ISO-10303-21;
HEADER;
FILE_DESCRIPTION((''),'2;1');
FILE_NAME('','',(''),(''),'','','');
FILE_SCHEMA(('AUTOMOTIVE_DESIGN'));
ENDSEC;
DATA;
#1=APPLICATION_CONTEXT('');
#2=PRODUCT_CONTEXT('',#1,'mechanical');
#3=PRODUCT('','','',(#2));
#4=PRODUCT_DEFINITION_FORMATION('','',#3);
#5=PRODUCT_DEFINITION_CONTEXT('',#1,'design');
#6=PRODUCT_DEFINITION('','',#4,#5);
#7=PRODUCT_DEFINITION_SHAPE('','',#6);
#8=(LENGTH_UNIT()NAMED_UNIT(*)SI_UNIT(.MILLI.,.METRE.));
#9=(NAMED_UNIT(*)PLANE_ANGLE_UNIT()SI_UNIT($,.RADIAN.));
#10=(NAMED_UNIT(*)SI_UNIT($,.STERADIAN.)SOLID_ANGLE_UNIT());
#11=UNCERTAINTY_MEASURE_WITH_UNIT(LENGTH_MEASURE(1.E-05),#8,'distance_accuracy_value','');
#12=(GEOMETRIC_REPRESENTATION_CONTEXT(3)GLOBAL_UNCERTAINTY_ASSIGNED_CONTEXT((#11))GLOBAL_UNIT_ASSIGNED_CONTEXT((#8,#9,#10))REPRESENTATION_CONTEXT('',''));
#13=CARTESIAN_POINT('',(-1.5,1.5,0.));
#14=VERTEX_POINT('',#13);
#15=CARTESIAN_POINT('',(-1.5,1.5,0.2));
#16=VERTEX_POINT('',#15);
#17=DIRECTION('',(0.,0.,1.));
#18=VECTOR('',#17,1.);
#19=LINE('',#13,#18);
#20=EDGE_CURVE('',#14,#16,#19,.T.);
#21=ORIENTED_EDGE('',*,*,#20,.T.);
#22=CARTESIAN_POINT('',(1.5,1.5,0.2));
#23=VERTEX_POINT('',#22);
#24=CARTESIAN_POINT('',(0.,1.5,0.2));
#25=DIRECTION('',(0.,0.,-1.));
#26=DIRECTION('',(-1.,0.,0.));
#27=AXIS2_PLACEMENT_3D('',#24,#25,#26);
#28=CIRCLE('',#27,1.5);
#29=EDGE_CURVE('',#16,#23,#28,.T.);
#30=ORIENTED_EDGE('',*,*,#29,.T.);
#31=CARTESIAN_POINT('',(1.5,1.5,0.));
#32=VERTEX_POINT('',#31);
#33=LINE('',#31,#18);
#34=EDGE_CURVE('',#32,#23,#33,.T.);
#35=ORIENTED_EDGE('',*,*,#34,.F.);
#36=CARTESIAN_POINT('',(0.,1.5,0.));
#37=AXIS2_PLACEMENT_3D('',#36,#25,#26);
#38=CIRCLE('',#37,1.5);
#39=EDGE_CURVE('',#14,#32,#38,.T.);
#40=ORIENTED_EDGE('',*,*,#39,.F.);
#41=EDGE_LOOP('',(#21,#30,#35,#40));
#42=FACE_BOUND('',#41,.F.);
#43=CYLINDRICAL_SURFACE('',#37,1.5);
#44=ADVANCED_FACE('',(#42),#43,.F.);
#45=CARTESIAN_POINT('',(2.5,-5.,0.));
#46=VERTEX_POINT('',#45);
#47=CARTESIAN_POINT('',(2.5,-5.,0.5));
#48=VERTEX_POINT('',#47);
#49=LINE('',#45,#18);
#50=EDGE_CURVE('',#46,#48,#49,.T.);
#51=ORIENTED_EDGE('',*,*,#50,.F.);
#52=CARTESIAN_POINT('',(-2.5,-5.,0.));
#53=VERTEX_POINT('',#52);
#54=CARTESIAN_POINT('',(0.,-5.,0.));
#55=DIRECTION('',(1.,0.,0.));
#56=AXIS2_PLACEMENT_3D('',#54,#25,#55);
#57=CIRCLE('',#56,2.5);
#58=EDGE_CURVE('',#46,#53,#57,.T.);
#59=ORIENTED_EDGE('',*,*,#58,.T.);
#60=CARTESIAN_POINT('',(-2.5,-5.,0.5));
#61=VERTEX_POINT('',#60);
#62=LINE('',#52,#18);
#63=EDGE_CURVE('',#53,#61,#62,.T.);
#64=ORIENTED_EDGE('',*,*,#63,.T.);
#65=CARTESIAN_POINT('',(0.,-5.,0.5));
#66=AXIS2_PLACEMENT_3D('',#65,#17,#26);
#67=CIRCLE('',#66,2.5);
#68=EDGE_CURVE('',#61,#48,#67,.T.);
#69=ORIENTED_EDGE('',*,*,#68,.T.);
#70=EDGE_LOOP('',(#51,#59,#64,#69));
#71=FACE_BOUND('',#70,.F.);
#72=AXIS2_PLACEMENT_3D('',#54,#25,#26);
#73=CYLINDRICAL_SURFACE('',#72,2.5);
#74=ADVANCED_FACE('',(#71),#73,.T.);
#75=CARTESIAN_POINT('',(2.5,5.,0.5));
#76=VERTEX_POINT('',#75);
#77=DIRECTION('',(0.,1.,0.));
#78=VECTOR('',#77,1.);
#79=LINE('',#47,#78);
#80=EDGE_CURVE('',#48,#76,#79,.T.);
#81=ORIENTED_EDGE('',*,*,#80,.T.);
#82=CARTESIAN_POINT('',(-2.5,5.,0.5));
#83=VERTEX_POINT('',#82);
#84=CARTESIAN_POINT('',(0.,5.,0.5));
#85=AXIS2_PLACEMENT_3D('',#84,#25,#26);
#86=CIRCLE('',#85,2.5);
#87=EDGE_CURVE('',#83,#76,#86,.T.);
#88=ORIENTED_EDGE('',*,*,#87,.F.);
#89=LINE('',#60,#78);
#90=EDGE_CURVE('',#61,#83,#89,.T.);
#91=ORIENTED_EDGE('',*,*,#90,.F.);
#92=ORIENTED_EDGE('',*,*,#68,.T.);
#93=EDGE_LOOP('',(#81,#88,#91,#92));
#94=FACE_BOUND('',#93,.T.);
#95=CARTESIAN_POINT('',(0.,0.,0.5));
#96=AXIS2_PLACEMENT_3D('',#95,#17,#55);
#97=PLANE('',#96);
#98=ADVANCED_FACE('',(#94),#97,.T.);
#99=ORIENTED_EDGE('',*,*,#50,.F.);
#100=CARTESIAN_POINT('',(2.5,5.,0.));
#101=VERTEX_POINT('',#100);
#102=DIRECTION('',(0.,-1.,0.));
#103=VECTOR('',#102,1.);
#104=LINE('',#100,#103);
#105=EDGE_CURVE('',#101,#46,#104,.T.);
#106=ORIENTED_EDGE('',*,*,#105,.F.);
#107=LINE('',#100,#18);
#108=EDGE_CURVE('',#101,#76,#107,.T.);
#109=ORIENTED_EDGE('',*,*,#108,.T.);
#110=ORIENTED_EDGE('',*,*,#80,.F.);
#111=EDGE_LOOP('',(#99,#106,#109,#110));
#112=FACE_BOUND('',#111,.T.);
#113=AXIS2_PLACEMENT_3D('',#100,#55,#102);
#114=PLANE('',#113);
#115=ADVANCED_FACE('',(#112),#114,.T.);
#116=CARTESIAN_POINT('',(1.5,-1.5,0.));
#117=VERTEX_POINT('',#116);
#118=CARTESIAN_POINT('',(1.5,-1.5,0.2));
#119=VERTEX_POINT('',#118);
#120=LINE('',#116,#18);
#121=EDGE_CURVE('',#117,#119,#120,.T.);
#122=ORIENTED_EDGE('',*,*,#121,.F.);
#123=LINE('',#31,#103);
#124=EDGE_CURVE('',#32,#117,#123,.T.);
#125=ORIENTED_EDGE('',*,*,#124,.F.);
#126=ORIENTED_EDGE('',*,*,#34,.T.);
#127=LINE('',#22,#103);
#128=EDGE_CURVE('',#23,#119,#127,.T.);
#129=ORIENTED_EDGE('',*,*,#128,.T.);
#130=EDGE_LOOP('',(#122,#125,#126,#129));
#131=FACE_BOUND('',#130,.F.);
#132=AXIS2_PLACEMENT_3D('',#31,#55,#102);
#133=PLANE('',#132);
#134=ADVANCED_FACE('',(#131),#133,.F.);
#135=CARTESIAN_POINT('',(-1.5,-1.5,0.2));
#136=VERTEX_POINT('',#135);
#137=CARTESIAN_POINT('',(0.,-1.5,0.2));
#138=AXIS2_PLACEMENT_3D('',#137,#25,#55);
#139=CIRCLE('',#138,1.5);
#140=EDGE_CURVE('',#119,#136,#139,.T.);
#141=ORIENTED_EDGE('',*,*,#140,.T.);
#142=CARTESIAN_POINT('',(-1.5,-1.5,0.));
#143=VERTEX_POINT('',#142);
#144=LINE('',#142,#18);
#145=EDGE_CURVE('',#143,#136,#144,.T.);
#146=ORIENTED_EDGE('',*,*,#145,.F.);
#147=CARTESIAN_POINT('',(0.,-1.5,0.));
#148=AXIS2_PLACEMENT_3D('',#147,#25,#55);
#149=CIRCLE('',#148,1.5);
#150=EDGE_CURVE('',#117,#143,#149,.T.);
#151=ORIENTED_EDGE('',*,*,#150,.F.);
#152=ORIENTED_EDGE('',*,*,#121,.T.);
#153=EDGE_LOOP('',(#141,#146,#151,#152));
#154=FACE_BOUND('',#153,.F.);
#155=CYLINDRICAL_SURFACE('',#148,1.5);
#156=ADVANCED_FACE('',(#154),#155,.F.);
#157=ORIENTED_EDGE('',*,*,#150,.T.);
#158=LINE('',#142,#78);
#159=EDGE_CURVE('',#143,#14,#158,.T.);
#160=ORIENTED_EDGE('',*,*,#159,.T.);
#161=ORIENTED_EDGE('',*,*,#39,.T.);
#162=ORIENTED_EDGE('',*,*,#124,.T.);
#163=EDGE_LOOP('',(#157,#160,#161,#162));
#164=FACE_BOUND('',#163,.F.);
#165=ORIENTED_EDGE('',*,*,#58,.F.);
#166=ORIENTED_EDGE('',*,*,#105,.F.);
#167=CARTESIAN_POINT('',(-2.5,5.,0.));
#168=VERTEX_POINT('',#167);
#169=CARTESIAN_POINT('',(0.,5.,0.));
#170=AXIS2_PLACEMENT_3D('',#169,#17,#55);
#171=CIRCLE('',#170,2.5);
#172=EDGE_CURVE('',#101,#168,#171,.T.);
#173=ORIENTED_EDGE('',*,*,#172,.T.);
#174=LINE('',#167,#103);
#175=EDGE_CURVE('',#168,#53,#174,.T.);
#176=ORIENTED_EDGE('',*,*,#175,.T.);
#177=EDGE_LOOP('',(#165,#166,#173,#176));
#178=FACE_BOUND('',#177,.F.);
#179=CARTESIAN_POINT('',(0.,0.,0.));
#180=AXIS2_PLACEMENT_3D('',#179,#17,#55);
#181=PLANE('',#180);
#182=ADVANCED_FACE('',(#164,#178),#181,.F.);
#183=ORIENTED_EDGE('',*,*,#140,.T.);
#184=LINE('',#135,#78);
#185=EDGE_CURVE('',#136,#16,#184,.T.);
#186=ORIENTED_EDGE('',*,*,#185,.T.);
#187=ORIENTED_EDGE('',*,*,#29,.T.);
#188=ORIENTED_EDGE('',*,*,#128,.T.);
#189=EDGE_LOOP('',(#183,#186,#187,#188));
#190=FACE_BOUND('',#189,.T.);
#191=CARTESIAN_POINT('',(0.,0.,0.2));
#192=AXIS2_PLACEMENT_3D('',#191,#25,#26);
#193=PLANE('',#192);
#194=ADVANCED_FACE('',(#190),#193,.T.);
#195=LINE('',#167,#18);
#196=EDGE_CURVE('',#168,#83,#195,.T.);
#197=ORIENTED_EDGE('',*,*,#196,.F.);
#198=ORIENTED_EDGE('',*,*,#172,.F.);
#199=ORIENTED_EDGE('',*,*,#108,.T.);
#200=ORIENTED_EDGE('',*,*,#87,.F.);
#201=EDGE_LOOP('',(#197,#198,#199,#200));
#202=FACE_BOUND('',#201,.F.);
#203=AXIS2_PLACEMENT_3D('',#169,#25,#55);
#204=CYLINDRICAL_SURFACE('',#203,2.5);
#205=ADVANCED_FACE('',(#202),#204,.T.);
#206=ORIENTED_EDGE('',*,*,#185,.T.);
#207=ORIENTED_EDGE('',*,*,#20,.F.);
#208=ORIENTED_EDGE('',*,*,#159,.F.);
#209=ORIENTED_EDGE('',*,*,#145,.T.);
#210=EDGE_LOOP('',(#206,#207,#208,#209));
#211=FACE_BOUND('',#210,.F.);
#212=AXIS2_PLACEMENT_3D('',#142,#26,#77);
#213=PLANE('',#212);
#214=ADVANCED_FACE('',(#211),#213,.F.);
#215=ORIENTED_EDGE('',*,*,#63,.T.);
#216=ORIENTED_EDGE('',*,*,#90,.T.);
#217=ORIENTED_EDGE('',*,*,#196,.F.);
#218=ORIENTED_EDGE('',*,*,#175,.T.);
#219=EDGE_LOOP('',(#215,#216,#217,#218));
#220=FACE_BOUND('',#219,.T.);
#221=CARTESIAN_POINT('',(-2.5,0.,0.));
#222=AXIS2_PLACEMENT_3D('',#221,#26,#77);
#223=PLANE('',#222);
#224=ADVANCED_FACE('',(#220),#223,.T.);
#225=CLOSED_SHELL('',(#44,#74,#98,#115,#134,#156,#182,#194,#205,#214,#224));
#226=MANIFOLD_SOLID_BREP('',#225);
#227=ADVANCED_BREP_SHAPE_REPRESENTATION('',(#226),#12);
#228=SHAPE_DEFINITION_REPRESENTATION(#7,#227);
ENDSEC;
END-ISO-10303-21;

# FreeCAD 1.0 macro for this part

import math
import FreeCAD as App
import Part
import Sketcher

V = App.Vector
Q = App.Units.Quantity

doc = App.newDocument("Part")
params = doc.addObject("Spreadsheet::Sheet", "Params")
for row, (alias, value) in enumerate([
    ("sketch1_radius", "2.5 mm"),
    ("pad1_length", "0.5 mm"),
    ("sketch2_radius", "1.5 mm"),
    ("sketch2_height", "3 mm"),
    ("pocket1_length", "0.2 mm"),
], start=1):
    params.set(f"A{row}", alias)
    params.set(f"B{row}", "=" + value)
    params.setAlias(f"B{row}", alias)

body = doc.addObject("PartDesign::Body", "Body")

sketch1 = body.newObject("Sketcher::SketchObject", "Sketch")
sketch1.AttachmentSupport = (doc.getObject("XY_Plane"), [""])
sketch1.MapMode = "FlatFace"
sketch1.addGeometry([
    Part.LineSegment(V(-2.5, 5, 0), V(-2.5, -5, 0)),
    Part.ArcOfCircle(Part.Circle(V(0, -5, 0), V(0, 0, 1), 2.5), math.radians(180), math.radians(360)),
    Part.LineSegment(V(2.5, -5, 0), V(2.5, 5, 0)),
    Part.ArcOfCircle(Part.Circle(V(0, 5, 0), V(0, 0, 1), 2.5), math.radians(0), math.radians(180)),
], False)
sketch1.addConstraint([
    Sketcher.Constraint("Tangent", 0, 2, 1, 1),
    Sketcher.Constraint("Tangent", 1, 2, 2, 1),
    Sketcher.Constraint("Tangent", 2, 2, 3, 1),
    Sketcher.Constraint("Tangent", 3, 2, 0, 1),
    Sketcher.Constraint("Vertical", 0),
    Sketcher.Constraint("Vertical", 2),
    Sketcher.Constraint("Symmetric", 1, 3, 3, 3, -1, 1),
    Sketcher.Constraint("Radius", 1, Q("2.5 mm")),
    Sketcher.Constraint("DistanceY", 1, 3, -1, 1, Q("5 mm")),
])
sketch1.setExpression("Constraints[7]", "Params.sketch1_radius")
pad1 = body.newObject("PartDesign::Pad", "Pad")
pad1.Profile = sketch1
pad1.setExpression("Length", "Params.pad1_length")

sketch2 = body.newObject("Sketcher::SketchObject", "Sketch001")
sketch2.AttachmentSupport = (doc.getObject("XY_Plane"), [""])
sketch2.MapMode = "FlatFace"
sketch2.addGeometry([
    Part.ArcOfCircle(Part.Circle(V(0, -1.5, 0), V(0, 0, 1), 1.5), math.radians(180), math.radians(360)),
    Part.LineSegment(V(-1.5, -1.5, 0), V(-1.5, 1.5, 0)),
    Part.ArcOfCircle(Part.Circle(V(0, 1.5, 0), V(0, 0, 1), 1.5), math.radians(0), math.radians(180)),
    Part.LineSegment(V(1.5, 1.5, 0), V(1.5, -1.5, 0)),
], False)
sketch2.addConstraint([
    Sketcher.Constraint("Tangent", 0, 1, 1, 1),
    Sketcher.Constraint("Tangent", 1, 2, 2, 2),
    Sketcher.Constraint("Tangent", 2, 1, 3, 1),
    Sketcher.Constraint("Tangent", 3, 2, 0, 2),
    Sketcher.Constraint("Vertical", 1),
    Sketcher.Constraint("Vertical", 3),
    Sketcher.Constraint("Symmetric", 0, 3, 2, 3, -1, 1),
    Sketcher.Constraint("Radius", 0, Q("1.5 mm")),
    Sketcher.Constraint("DistanceY", 1, 1, 1, 2, Q("3 mm")),
])
sketch2.setExpression("Constraints[7]", "Params.sketch2_radius")
sketch2.setExpression("Constraints[8]", "Params.sketch2_height")
pocket1 = body.newObject("PartDesign::Pocket", "Pocket")
pocket1.Profile = sketch2
pocket1.setExpression("Length", "Params.pocket1_length")
pocket1.Reversed = True

doc.recompute()
